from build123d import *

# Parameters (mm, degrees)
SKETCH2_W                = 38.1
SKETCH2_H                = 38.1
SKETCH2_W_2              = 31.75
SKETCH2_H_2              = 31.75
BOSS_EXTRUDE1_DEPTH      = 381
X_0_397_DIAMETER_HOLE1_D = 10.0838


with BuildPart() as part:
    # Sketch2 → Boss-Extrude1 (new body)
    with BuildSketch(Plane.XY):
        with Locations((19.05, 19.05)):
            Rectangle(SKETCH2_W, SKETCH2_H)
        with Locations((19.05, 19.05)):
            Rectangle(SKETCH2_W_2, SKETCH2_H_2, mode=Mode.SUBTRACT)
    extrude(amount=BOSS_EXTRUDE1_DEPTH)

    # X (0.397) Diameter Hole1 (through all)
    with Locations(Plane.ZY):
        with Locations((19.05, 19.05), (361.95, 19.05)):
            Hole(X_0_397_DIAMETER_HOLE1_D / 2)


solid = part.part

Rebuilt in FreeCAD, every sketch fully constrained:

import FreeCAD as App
import Part
import Sketcher

V = App.Vector
Q = App.Units.Quantity


def add_polygon(sketch, points):
    """Adds a closed chain of lines whose ends are joined by coincident constraints."""
    first, n = sketch.GeometryCount, len(points)
    for a, b in zip(points, points[1:] + points[:1]):
        sketch.addGeometry(Part.LineSegment(App.Vector(*a, 0), App.Vector(*b, 0)), False)
    for i in range(n):
        sketch.addConstraint(Sketcher.Constraint("Coincident", first + i, 2, first + (i + 1) % n, 1))

doc = App.newDocument("Part")
params = doc.addObject("Spreadsheet::Sheet", "Params")
for row, (alias, value) in enumerate([
    ("sketch1_width", "1.5 in"),
    ("sketch1_width2", "1.25 in"),
    ("pad1_length", "15 in"),
    ("sketch2_diameter", "0.397 in"),
    ("hole_diameter", "0.397 in"),
], start=1):
    params.set(f"A{row}", alias)
    params.set(f"B{row}", "=" + value)
    params.setAlias(f"B{row}", alias)

body = doc.addObject("PartDesign::Body", "Body")

sketch1 = doc.addObject("Sketcher::SketchObject", "Sketch")
body.addObject(sketch1)
sketch1.AttachmentSupport = (doc.XY_Plane, [""])
sketch1.MapMode = "FlatFace"
add_polygon(sketch1, [(0, 38.1), (0, 0), (38.1, 0), (38.1, 38.1)])
add_polygon(sketch1, [(34.925, 3.175), (3.175, 3.175), (3.175, 34.925), (34.925, 34.925)])
sketch1.addConstraint(Sketcher.Constraint("Vertical", 0))
sketch1.addConstraint(Sketcher.Constraint("Horizontal", 1))
sketch1.addConstraint(Sketcher.Constraint("Vertical", 2))
sketch1.addConstraint(Sketcher.Constraint("Horizontal", 3))
sketch1.addConstraint(Sketcher.Constraint("Horizontal", 4))
sketch1.addConstraint(Sketcher.Constraint("Vertical", 5))
sketch1.addConstraint(Sketcher.Constraint("Horizontal", 6))
sketch1.addConstraint(Sketcher.Constraint("Vertical", 7))
sketch1.addConstraint(Sketcher.Constraint("Coincident", 0, 2, -1, 1))
sketch1.addConstraint(Sketcher.Constraint("Equal", 3, 0))
sketch1.addConstraint(Sketcher.Constraint("Equal", 6, 5))
sketch1.addConstraint(Sketcher.Constraint("DistanceX", 1, 1, 1, 2, Q("1.5 in")))
sketch1.addConstraint(Sketcher.Constraint("DistanceX", 4, 2, 4, 1, Q("1.25 in")))
sketch1.addConstraint(Sketcher.Constraint("DistanceX", -1, 1, 4, 2, Q("0.125 in")))
sketch1.addConstraint(Sketcher.Constraint("DistanceY", -1, 1, 4, 2, Q("0.125 in")))
sketch1.setExpression("Constraints[19]", "Params.sketch1_width")
sketch1.setExpression("Constraints[20]", "Params.sketch1_width2")
pad1 = doc.addObject("PartDesign::Pad", "Pad")
body.addObject(pad1)
pad1.Profile = sketch1
pad1.setExpression("Length", "Params.pad1_length")

sketch2 = doc.addObject("Sketcher::SketchObject", "Sketch001")
body.addObject(sketch2)
sketch2.AttachmentSupport = (doc.YZ_Plane, [""])
sketch2.MapMode = "FlatFace"
sketch2.addGeometry(Part.Circle(V(19.05, 19.05, 0), V(0, 0, 1), 5.0419), False)
sketch2.addGeometry(Part.Circle(V(19.05, 361.95, 0), V(0, 0, 1), 5.0419), False)
sketch2.addConstraint(Sketcher.Constraint("Equal", 0, 1))
sketch2.addConstraint(Sketcher.Constraint("Vertical", 0, 3, 1, 3))
sketch2.addConstraint(Sketcher.Constraint("Diameter", 0, Q("0.397 in")))
sketch2.addConstraint(Sketcher.Constraint("DistanceY", 0, 3, 1, 3, Q("13.5 in")))
sketch2.addConstraint(Sketcher.Constraint("DistanceX", -1, 1, 0, 3, Q("0.75 in")))
sketch2.addConstraint(Sketcher.Constraint("DistanceY", -1, 1, 0, 3, Q("0.75 in")))
sketch2.setExpression("Constraints[2]", "Params.sketch2_diameter")
doc.recompute()
hole = doc.addObject("PartDesign::Hole", "Hole")
body.addObject(hole)
hole.Profile = sketch2
hole.ThreadType = "None"
hole.setExpression("Diameter", "Params.hole_diameter")
hole.DepthType = "ThroughAll"
hole.Reversed = True

doc.recompute()
